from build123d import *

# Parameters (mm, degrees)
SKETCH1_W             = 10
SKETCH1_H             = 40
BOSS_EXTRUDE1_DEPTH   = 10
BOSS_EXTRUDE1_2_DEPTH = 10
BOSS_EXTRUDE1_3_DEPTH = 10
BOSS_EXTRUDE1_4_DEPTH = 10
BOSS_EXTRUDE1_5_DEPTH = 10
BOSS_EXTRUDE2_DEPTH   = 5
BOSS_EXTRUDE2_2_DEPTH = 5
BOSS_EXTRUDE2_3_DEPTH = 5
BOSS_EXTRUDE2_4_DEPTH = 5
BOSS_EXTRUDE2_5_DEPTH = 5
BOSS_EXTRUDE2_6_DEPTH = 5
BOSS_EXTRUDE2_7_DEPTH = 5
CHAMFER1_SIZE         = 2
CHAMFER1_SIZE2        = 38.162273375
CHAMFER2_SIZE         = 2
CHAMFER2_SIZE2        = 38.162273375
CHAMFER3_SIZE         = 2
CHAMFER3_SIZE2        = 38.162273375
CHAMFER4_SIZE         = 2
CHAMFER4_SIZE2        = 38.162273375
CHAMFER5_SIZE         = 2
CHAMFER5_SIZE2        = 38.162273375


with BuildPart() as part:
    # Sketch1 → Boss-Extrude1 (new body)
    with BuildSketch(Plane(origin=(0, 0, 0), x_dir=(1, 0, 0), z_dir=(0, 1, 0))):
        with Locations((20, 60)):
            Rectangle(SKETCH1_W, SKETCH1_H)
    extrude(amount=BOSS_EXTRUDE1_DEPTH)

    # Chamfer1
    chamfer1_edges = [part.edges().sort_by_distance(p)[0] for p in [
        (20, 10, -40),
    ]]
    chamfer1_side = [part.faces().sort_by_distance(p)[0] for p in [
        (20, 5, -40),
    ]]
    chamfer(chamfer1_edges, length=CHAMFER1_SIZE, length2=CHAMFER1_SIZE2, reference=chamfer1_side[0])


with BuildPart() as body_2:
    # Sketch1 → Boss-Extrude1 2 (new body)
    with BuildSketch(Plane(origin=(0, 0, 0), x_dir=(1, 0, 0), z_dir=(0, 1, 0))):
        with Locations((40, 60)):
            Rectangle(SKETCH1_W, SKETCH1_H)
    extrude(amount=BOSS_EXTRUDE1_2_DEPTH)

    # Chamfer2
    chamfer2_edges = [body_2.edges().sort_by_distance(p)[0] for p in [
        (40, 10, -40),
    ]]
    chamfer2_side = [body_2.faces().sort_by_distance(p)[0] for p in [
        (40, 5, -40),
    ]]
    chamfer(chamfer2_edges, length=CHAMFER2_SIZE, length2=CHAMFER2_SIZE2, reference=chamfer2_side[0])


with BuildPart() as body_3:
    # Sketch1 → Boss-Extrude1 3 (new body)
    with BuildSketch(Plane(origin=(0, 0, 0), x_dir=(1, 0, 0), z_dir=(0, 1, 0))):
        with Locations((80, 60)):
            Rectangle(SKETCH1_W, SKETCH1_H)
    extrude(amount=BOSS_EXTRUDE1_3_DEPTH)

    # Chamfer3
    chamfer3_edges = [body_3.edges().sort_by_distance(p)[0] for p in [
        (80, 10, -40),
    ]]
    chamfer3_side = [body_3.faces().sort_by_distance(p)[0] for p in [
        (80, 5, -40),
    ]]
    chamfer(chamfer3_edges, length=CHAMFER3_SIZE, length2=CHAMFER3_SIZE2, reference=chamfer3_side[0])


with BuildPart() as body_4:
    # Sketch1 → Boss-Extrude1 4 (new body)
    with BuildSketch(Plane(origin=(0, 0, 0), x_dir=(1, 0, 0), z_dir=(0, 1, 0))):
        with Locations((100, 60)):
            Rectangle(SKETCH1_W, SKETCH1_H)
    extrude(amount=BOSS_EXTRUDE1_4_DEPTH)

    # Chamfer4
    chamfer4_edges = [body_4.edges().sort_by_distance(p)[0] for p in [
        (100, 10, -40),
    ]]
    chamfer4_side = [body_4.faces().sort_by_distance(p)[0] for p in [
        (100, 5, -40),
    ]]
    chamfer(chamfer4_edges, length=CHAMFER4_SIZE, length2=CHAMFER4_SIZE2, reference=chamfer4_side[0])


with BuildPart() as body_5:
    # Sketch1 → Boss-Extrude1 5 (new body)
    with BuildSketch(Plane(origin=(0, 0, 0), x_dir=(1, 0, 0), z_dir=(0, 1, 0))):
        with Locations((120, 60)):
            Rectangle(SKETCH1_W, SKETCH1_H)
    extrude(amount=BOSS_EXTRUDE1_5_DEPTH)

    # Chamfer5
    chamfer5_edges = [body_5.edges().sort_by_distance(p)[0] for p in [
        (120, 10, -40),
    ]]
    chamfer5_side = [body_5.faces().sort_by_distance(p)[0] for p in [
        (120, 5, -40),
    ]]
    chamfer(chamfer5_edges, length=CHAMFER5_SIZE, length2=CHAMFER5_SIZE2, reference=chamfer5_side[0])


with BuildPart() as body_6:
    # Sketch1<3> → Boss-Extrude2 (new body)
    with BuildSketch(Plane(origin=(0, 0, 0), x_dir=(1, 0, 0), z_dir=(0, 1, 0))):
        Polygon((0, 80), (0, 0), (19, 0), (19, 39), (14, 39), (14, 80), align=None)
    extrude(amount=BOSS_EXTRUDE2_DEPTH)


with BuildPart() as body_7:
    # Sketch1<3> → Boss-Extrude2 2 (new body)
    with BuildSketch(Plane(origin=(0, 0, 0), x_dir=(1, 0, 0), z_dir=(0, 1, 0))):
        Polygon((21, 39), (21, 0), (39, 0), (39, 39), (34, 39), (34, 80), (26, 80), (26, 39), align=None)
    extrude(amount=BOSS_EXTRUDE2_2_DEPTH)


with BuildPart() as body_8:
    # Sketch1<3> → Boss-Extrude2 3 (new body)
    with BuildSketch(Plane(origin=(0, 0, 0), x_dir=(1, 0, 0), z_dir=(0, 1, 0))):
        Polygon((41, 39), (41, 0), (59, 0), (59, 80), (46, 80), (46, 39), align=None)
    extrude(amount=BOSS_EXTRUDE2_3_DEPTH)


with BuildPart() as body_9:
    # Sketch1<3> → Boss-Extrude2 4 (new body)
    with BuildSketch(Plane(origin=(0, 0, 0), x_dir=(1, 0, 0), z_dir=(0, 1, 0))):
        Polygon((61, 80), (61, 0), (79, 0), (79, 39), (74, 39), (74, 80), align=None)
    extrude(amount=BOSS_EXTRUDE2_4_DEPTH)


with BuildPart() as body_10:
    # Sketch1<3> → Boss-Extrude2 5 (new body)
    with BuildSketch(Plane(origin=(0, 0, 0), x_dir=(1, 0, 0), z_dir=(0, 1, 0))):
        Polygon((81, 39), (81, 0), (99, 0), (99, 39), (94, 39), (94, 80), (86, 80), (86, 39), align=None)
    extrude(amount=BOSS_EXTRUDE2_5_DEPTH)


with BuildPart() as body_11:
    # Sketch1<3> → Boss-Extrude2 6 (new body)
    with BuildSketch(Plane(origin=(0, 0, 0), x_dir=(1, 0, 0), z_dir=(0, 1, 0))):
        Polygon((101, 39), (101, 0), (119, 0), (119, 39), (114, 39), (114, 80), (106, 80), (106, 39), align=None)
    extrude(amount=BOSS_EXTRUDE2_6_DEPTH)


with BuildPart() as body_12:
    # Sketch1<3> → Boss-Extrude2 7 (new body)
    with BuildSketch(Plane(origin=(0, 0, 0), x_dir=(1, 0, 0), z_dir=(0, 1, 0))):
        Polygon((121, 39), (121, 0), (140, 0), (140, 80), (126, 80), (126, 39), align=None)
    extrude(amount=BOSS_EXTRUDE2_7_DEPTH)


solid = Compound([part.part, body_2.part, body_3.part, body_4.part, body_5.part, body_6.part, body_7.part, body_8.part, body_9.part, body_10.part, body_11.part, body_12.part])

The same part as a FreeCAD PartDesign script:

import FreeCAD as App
import Part
import Sketcher
from FreeCAD import Vector


def edges_at(feature, points):
    """Names of the edges that pass closest to the given points."""
    edges = feature.Shape.Edges
    near = lambda p: min(range(len(edges)), key=lambda i: edges[i].distToShape(Part.Vertex(*p))[0])
    return sorted({f"Edge{near(p) + 1}" for p in points})


def add_polygon(sketch, points):
    """Adds a closed chain of lines whose ends are joined by coincident constraints."""
    first, n = sketch.GeometryCount, len(points)
    for a, b in zip(points, points[1:] + points[:1]):
        sketch.addGeometry(Part.LineSegment(App.Vector(*a, 0), App.Vector(*b, 0)), False)
    for i in range(n):
        sketch.addConstraint(Sketcher.Constraint("Coincident", first + i, 2, first + (i + 1) % n, 1))

doc = App.newDocument("Part")
body = doc.addObject("PartDesign::Body", "Body")

sketch1 = body.newObject("Sketcher::SketchObject", "Sketch")
sketch1.AttachmentSupport = (doc.getObject("XZ_Plane"), [""])
sketch1.MapMode = "FlatFace"
add_polygon(sketch1, [(15, -80), (15, -40), (25, -40), (25, -80)])
sketch1.addConstraint([
    Sketcher.Constraint("Vertical", 0),
    Sketcher.Constraint("Horizontal", 1),
    Sketcher.Constraint("Vertical", 2),
    Sketcher.Constraint("Horizontal", 3),
    Sketcher.Constraint("DistanceX", 1, 1, 1, 2, 10.0),
    Sketcher.Constraint("DistanceY", 0, 1, 0, 2, 40.0),
    Sketcher.Constraint("DistanceX", -1, 1, 0, 2, 15.0),
    Sketcher.Constraint("DistanceY", 0, 2, -1, 1, 40.0),
])
pad1 = body.newObject("PartDesign::Pad", "Pad")
pad1.Profile = sketch1
pad1.Length = 10
pad1.Reversed = True
doc.recompute()

chamfer = body.newObject("PartDesign::Chamfer", "Chamfer")
chamfer.Base = (pad1, edges_at(pad1, [(20, 10, -40)]))
chamfer.ChamferType = "Two distances"
chamfer.Size = 2
chamfer.Size2 = 38.162273
body2 = doc.addObject("PartDesign::Body", "Body001")

sketch2 = body2.newObject("Sketcher::SketchObject", "Sketch001")
sketch2.AttachmentSupport = (doc.getObject("XZ_Plane001"), [""])
sketch2.MapMode = "FlatFace"
add_polygon(sketch2, [(35, -80), (35, -40), (45, -40), (45, -80)])
sketch2.addConstraint([
    Sketcher.Constraint("Vertical", 0),
    Sketcher.Constraint("Horizontal", 1),
    Sketcher.Constraint("Vertical", 2),
    Sketcher.Constraint("Horizontal", 3),
    Sketcher.Constraint("DistanceX", 1, 1, 1, 2, 10.0),
    Sketcher.Constraint("DistanceY", 0, 1, 0, 2, 40.0),
    Sketcher.Constraint("DistanceX", -1, 1, 0, 2, 35.0),
    Sketcher.Constraint("DistanceY", 0, 2, -1, 1, 40.0),
])
pad2 = body2.newObject("PartDesign::Pad", "Pad001")
pad2.Profile = sketch2
pad2.Length = 10
pad2.Reversed = True
doc.recompute()

chamfer2 = body2.newObject("PartDesign::Chamfer", "Chamfer001")
chamfer2.Base = (pad2, edges_at(pad2, [(40, 10, -40)]))
chamfer2.ChamferType = "Two distances"
chamfer2.Size = 2
chamfer2.Size2 = 38.162273
body3 = doc.addObject("PartDesign::Body", "Body002")

sketch3 = body3.newObject("Sketcher::SketchObject", "Sketch002")
sketch3.AttachmentSupport = (doc.getObject("XZ_Plane002"), [""])
sketch3.MapMode = "FlatFace"
add_polygon(sketch3, [(75, -80), (75, -40), (85, -40), (85, -80)])
sketch3.addConstraint([
    Sketcher.Constraint("Vertical", 0),
    Sketcher.Constraint("Horizontal", 1),
    Sketcher.Constraint("Vertical", 2),
    Sketcher.Constraint("Horizontal", 3),
    Sketcher.Constraint("DistanceX", 1, 1, 1, 2, 10.0),
    Sketcher.Constraint("DistanceY", 0, 1, 0, 2, 40.0),
    Sketcher.Constraint("DistanceX", -1, 1, 0, 2, 75.0),
    Sketcher.Constraint("DistanceY", 0, 2, -1, 1, 40.0),
])
pad3 = body3.newObject("PartDesign::Pad", "Pad002")
pad3.Profile = sketch3
pad3.Length = 10
pad3.Reversed = True
doc.recompute()

chamfer3 = body3.newObject("PartDesign::Chamfer", "Chamfer002")
chamfer3.Base = (pad3, edges_at(pad3, [(80, 10, -40)]))
chamfer3.ChamferType = "Two distances"
chamfer3.Size = 2
chamfer3.Size2 = 38.162273
body4 = doc.addObject("PartDesign::Body", "Body003")

sketch4 = body4.newObject("Sketcher::SketchObject", "Sketch003")
sketch4.AttachmentSupport = (doc.getObject("XZ_Plane003"), [""])
sketch4.MapMode = "FlatFace"
add_polygon(sketch4, [(95, -80), (95, -40), (105, -40), (105, -80)])
sketch4.addConstraint([
    Sketcher.Constraint("Vertical", 0),
    Sketcher.Constraint("Horizontal", 1),
    Sketcher.Constraint("Vertical", 2),
    Sketcher.Constraint("Horizontal", 3),
    Sketcher.Constraint("DistanceX", 1, 1, 1, 2, 10.0),
    Sketcher.Constraint("DistanceY", 0, 1, 0, 2, 40.0),
    Sketcher.Constraint("DistanceX", -1, 1, 0, 2, 95.0),
    Sketcher.Constraint("DistanceY", 0, 2, -1, 1, 40.0),
])
pad4 = body4.newObject("PartDesign::Pad", "Pad003")
pad4.Profile = sketch4
pad4.Length = 10
pad4.Reversed = True
doc.recompute()

chamfer4 = body4.newObject("PartDesign::Chamfer", "Chamfer003")
chamfer4.Base = (pad4, edges_at(pad4, [(100, 10, -40)]))
chamfer4.ChamferType = "Two distances"
chamfer4.Size = 2
chamfer4.Size2 = 38.162273
body5 = doc.addObject("PartDesign::Body", "Body004")

sketch5 = body5.newObject("Sketcher::SketchObject", "Sketch004")
sketch5.AttachmentSupport = (doc.getObject("XZ_Plane004"), [""])
sketch5.MapMode = "FlatFace"
add_polygon(sketch5, [(115, -80), (115, -40), (125, -40), (125, -80)])
sketch5.addConstraint([
    Sketcher.Constraint("Vertical", 0),
    Sketcher.Constraint("Horizontal", 1),
    Sketcher.Constraint("Vertical", 2),
    Sketcher.Constraint("Horizontal", 3),
    Sketcher.Constraint("DistanceX", 1, 1, 1, 2, 10.0),
    Sketcher.Constraint("DistanceY", 0, 1, 0, 2, 40.0),
    Sketcher.Constraint("DistanceX", -1, 1, 0, 2, 115.0),
    Sketcher.Constraint("DistanceY", 0, 2, -1, 1, 40.0),
])
pad5 = body5.newObject("PartDesign::Pad", "Pad004")
pad5.Profile = sketch5
pad5.Length = 10
pad5.Reversed = True
doc.recompute()

chamfer5 = body5.newObject("PartDesign::Chamfer", "Chamfer004")
chamfer5.Base = (pad5, edges_at(pad5, [(120, 10, -40)]))
chamfer5.ChamferType = "Two distances"
chamfer5.Size = 2
chamfer5.Size2 = 38.162273
body6 = doc.addObject("PartDesign::Body", "Body005")

sketch6 = body6.newObject("Sketcher::SketchObject", "Sketch005")
sketch6.AttachmentSupport = (doc.getObject("XZ_Plane005"), [""])
sketch6.MapMode = "FlatFace"
add_polygon(sketch6, [(0, -80), (0, 0), (19, 0), (19, -39), (14, -39), (14, -80)])
sketch6.addConstraint([
    Sketcher.Constraint("Vertical", 0),
    Sketcher.Constraint("Horizontal", 1),
    Sketcher.Constraint("Vertical", 2),
    Sketcher.Constraint("Horizontal", 3),
    Sketcher.Constraint("Vertical", 4),
    Sketcher.Constraint("Horizontal", 5),
    Sketcher.Constraint("Coincident", 0, 2, -1, 1),
    Sketcher.Constraint("DistanceX", 1, 1, 1, 2, 19.0),
    Sketcher.Constraint("DistanceX", 3, 2, 3, 1, 5.0),
    Sketcher.Constraint("DistanceY", 0, 1, 0, 2, 80.0),
    Sketcher.Constraint("DistanceY", 2, 2, 2, 1, 39.0),
])
pad6 = body6.newObject("PartDesign::Pad", "Pad005")
pad6.Profile = sketch6
pad6.Length = 5
pad6.Reversed = True
body7 = doc.addObject("PartDesign::Body", "Body006")

sketch7 = body7.newObject("Sketcher::SketchObject", "Sketch006")
sketch7.AttachmentSupport = (doc.getObject("XZ_Plane006"), [""])
sketch7.MapMode = "FlatFace"
add_polygon(sketch7, [(21, -39), (21, 0), (39, 0), (39, -39), (34, -39), (34, -80), (26, -80), (26, -39)])
sketch7.addConstraint([
    Sketcher.Constraint("Vertical", 0),
    Sketcher.Constraint("Horizontal", 1),
    Sketcher.Constraint("Vertical", 2),
    Sketcher.Constraint("Horizontal", 3),
    Sketcher.Constraint("Vertical", 4),
    Sketcher.Constraint("Horizontal", 5),
    Sketcher.Constraint("Vertical", 6),
    Sketcher.Constraint("Horizontal", 7),
    Sketcher.Constraint("PointOnObject", 0, 2, -1),
    Sketcher.Constraint("Horizontal", 3, 2, 6, 2),
    Sketcher.Constraint("Equal", 3, 7),
    Sketcher.Constraint("DistanceX", 1, 1, 1, 2, 18.0),
    Sketcher.Constraint("DistanceX", 3, 2, 3, 1, 5.0),
    Sketcher.Constraint("DistanceY", 0, 1, 0, 2, 39.0),
    Sketcher.Constraint("DistanceY", 4, 2, 4, 1, 41.0),
    Sketcher.Constraint("DistanceX", -1, 1, 0, 2, 21.0),
])
pad7 = body7.newObject("PartDesign::Pad", "Pad006")
pad7.Profile = sketch7
pad7.Length = 5
pad7.Reversed = True
body8 = doc.addObject("PartDesign::Body", "Body007")

sketch8 = body8.newObject("Sketcher::SketchObject", "Sketch007")
sketch8.AttachmentSupport = (doc.getObject("XZ_Plane007"), [""])
sketch8.MapMode = "FlatFace"
add_polygon(sketch8, [(41, -39), (41, 0), (59, 0), (59, -80), (46, -80), (46, -39)])
sketch8.addConstraint([
    Sketcher.Constraint("Vertical", 0),
    Sketcher.Constraint("Horizontal", 1),
    Sketcher.Constraint("Vertical", 2),
    Sketcher.Constraint("Horizontal", 3),
    Sketcher.Constraint("Vertical", 4),
    Sketcher.Constraint("Horizontal", 5),
    Sketcher.Constraint("PointOnObject", 0, 2, -1),
    Sketcher.Constraint("DistanceX", 1, 1, 1, 2, 18.0),
    Sketcher.Constraint("DistanceX", 3, 2, 3, 1, 13.0),
    Sketcher.Constraint("DistanceY", 0, 1, 0, 2, 39.0),
    Sketcher.Constraint("DistanceY", 2, 2, 2, 1, 80.0),
    Sketcher.Constraint("DistanceX", -1, 1, 0, 2, 41.0),
])
pad8 = body8.newObject("PartDesign::Pad", "Pad007")
pad8.Profile = sketch8
pad8.Length = 5
pad8.Reversed = True
body9 = doc.addObject("PartDesign::Body", "Body008")

sketch9 = body9.newObject("Sketcher::SketchObject", "Sketch008")
sketch9.AttachmentSupport = (doc.getObject("XZ_Plane008"), [""])
sketch9.MapMode = "FlatFace"
add_polygon(sketch9, [(61, -80), (61, 0), (79, 0), (79, -39), (74, -39), (74, -80)])
sketch9.addConstraint([
    Sketcher.Constraint("Vertical", 0),
    Sketcher.Constraint("Horizontal", 1),
    Sketcher.Constraint("Vertical", 2),
    Sketcher.Constraint("Horizontal", 3),
    Sketcher.Constraint("Vertical", 4),
    Sketcher.Constraint("Horizontal", 5),
    Sketcher.Constraint("PointOnObject", 0, 2, -1),
    Sketcher.Constraint("DistanceX", 1, 1, 1, 2, 18.0),
    Sketcher.Constraint("DistanceX", 3, 2, 3, 1, 5.0),
    Sketcher.Constraint("DistanceY", 0, 1, 0, 2, 80.0),
    Sketcher.Constraint("DistanceY", 2, 2, 2, 1, 39.0),
    Sketcher.Constraint("DistanceX", -1, 1, 0, 2, 61.0),
])
pad9 = body9.newObject("PartDesign::Pad", "Pad008")
pad9.Profile = sketch9
pad9.Length = 5
pad9.Reversed = True
body10 = doc.addObject("PartDesign::Body", "Body009")

sketch10 = body10.newObject("Sketcher::SketchObject", "Sketch009")
sketch10.AttachmentSupport = (doc.getObject("XZ_Plane009"), [""])
sketch10.MapMode = "FlatFace"
add_polygon(sketch10, [(81, -39), (81, 0), (99, 0), (99, -39), (94, -39), (94, -80), (86, -80), (86, -39)])
sketch10.addConstraint([
    Sketcher.Constraint("Vertical", 0),
    Sketcher.Constraint("Horizontal", 1),
    Sketcher.Constraint("Vertical", 2),
    Sketcher.Constraint("Horizontal", 3),
    Sketcher.Constraint("Vertical", 4),
    Sketcher.Constraint("Horizontal", 5),
    Sketcher.Constraint("Vertical", 6),
    Sketcher.Constraint("Horizontal", 7),
    Sketcher.Constraint("PointOnObject", 0, 2, -1),
    Sketcher.Constraint("Horizontal", 3, 2, 6, 2),
    Sketcher.Constraint("Equal", 3, 7),
    Sketcher.Constraint("DistanceX", 1, 1, 1, 2, 18.0),
    Sketcher.Constraint("DistanceX", 3, 2, 3, 1, 5.0),
    Sketcher.Constraint("DistanceY", 0, 1, 0, 2, 39.0),
    Sketcher.Constraint("DistanceY", 4, 2, 4, 1, 41.0),
    Sketcher.Constraint("DistanceX", -1, 1, 0, 2, 81.0),
])
pad10 = body10.newObject("PartDesign::Pad", "Pad009")
pad10.Profile = sketch10
pad10.Length = 5
pad10.Reversed = True
body11 = doc.addObject("PartDesign::Body", "Body010")

sketch11 = body11.newObject("Sketcher::SketchObject", "Sketch010")
sketch11.AttachmentSupport = (doc.getObject("XZ_Plane010"), [""])
sketch11.MapMode = "FlatFace"
add_polygon(sketch11, [(101, -39), (101, 0), (119, 0), (119, -39), (114, -39), (114, -80), (106, -80), (106, -39)])
sketch11.addConstraint([
    Sketcher.Constraint("Vertical", 0),
    Sketcher.Constraint("Horizontal", 1),
    Sketcher.Constraint("Vertical", 2),
    Sketcher.Constraint("Horizontal", 3),
    Sketcher.Constraint("Vertical", 4),
    Sketcher.Constraint("Horizontal", 5),
    Sketcher.Constraint("Vertical", 6),
    Sketcher.Constraint("Horizontal", 7),
    Sketcher.Constraint("PointOnObject", 0, 2, -1),
    Sketcher.Constraint("Horizontal", 3, 2, 6, 2),
    Sketcher.Constraint("Equal", 3, 7),
    Sketcher.Constraint("DistanceX", 1, 1, 1, 2, 18.0),
    Sketcher.Constraint("DistanceX", 3, 2, 3, 1, 5.0),
    Sketcher.Constraint("DistanceY", 0, 1, 0, 2, 39.0),
    Sketcher.Constraint("DistanceY", 4, 2, 4, 1, 41.0),
    Sketcher.Constraint("DistanceX", -1, 1, 0, 2, 101.0),
])
pad11 = body11.newObject("PartDesign::Pad", "Pad010")
pad11.Profile = sketch11
pad11.Length = 5
pad11.Reversed = True
body12 = doc.addObject("PartDesign::Body", "Body011")

sketch12 = body12.newObject("Sketcher::SketchObject", "Sketch011")
sketch12.AttachmentSupport = (doc.getObject("XZ_Plane011"), [""])
sketch12.MapMode = "FlatFace"
add_polygon(sketch12, [(121, -39), (121, 0), (140, 0), (140, -80), (126, -80), (126, -39)])
sketch12.addConstraint([
    Sketcher.Constraint("Vertical", 0),
    Sketcher.Constraint("Horizontal", 1),
    Sketcher.Constraint("Vertical", 2),
    Sketcher.Constraint("Horizontal", 3),
    Sketcher.Constraint("Vertical", 4),
    Sketcher.Constraint("Horizontal", 5),
    Sketcher.Constraint("PointOnObject", 0, 2, -1),
    Sketcher.Constraint("DistanceX", 1, 1, 1, 2, 19.0),
    Sketcher.Constraint("DistanceX", 3, 2, 3, 1, 14.0),
    Sketcher.Constraint("DistanceY", 0, 1, 0, 2, 39.0),
    Sketcher.Constraint("DistanceY", 2, 2, 2, 1, 80.0),
    Sketcher.Constraint("DistanceX", -1, 1, 0, 2, 121.0),
])
pad12 = body12.newObject("PartDesign::Pad", "Pad011")
pad12.Profile = sketch12
pad12.Length = 5
pad12.Reversed = True

doc.recompute()
